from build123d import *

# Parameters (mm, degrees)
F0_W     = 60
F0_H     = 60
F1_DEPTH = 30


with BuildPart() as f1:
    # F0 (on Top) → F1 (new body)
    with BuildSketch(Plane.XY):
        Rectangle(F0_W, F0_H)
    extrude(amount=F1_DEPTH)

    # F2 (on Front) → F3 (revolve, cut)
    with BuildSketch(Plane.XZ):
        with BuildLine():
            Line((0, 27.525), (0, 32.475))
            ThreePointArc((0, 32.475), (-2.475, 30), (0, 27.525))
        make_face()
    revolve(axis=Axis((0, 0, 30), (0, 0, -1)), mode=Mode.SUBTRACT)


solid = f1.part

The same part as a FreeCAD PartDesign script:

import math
import FreeCAD as App
import Part
import Sketcher

doc = App.newDocument("Part")
body = doc.addObject("PartDesign::Body", "Body")

# Sketch on XY plane
sketch1 = body.newObject("Sketcher::SketchObject", "Sketch")
sketch1.AttachmentSupport = (doc.getObject("XY_Plane"), [""])
sketch1.MapMode = "FlatFace"
sketch1.addGeometry([
    Part.LineSegment(App.Vector(-30, 30, 0), App.Vector(-30, -30, 0)),
    Part.LineSegment(App.Vector(-30, -30, 0), App.Vector(30, -30, 0)),
    Part.LineSegment(App.Vector(30, -30, 0), App.Vector(30, 30, 0)),
    Part.LineSegment(App.Vector(30, 30, 0), App.Vector(-30, 30, 0)),
], False)
sketch1.addConstraint([
    Sketcher.Constraint("Coincident", 0, 2, 1, 1),
    Sketcher.Constraint("Coincident", 1, 2, 2, 1),
    Sketcher.Constraint("Coincident", 2, 2, 3, 1),
    Sketcher.Constraint("Coincident", 3, 2, 0, 1),
    Sketcher.Constraint("Vertical", 0),
    Sketcher.Constraint("Horizontal", 1),
    Sketcher.Constraint("Vertical", 2),
    Sketcher.Constraint("Horizontal", 3),
    Sketcher.Constraint("Symmetric", 0, 2, 2, 2, -1, 1),
    Sketcher.Constraint("Equal", 3, 0),
    Sketcher.Constraint("DistanceX", 1, 1, 1, 2, 60.0),
])
pad1 = body.newObject("PartDesign::Pad", "Pad")
pad1.Profile = sketch1
pad1.Length = 30

# Sketch on XZ plane
sketch2 = body.newObject("Sketcher::SketchObject", "Sketch001")
sketch2.AttachmentSupport = (doc.getObject("XZ_Plane"), [""])
sketch2.MapMode = "FlatFace"
sketch2.addGeometry([
    Part.LineSegment(App.Vector(0, 27.5, 0), App.Vector(0, 32.5, 0)),
    Part.ArcOfCircle(Part.Circle(App.Vector(0, 30, 0), App.Vector(0, 0, 1), 2.5), math.radians(90), math.radians(270)),
], False)
sketch2.addConstraint([
    Sketcher.Constraint("Coincident", 0, 1, 1, 2),
    Sketcher.Constraint("Coincident", 1, 1, 0, 2),
    Sketcher.Constraint("Vertical", 0),
    Sketcher.Constraint("PointOnObject", 1, 3, -2),
    Sketcher.Constraint("PointOnObject", 0, 1, -2),
    Sketcher.Constraint("DistanceY", -1, 1, 1, 3, 30.0),
    Sketcher.Constraint("Radius", 1, 2.475),
])
groove = body.newObject("PartDesign::Groove", "Groove")
groove.Profile = sketch2
groove.ReferenceAxis = (sketch2, ["V_Axis"])
groove.Angle = 360

doc.recompute()
